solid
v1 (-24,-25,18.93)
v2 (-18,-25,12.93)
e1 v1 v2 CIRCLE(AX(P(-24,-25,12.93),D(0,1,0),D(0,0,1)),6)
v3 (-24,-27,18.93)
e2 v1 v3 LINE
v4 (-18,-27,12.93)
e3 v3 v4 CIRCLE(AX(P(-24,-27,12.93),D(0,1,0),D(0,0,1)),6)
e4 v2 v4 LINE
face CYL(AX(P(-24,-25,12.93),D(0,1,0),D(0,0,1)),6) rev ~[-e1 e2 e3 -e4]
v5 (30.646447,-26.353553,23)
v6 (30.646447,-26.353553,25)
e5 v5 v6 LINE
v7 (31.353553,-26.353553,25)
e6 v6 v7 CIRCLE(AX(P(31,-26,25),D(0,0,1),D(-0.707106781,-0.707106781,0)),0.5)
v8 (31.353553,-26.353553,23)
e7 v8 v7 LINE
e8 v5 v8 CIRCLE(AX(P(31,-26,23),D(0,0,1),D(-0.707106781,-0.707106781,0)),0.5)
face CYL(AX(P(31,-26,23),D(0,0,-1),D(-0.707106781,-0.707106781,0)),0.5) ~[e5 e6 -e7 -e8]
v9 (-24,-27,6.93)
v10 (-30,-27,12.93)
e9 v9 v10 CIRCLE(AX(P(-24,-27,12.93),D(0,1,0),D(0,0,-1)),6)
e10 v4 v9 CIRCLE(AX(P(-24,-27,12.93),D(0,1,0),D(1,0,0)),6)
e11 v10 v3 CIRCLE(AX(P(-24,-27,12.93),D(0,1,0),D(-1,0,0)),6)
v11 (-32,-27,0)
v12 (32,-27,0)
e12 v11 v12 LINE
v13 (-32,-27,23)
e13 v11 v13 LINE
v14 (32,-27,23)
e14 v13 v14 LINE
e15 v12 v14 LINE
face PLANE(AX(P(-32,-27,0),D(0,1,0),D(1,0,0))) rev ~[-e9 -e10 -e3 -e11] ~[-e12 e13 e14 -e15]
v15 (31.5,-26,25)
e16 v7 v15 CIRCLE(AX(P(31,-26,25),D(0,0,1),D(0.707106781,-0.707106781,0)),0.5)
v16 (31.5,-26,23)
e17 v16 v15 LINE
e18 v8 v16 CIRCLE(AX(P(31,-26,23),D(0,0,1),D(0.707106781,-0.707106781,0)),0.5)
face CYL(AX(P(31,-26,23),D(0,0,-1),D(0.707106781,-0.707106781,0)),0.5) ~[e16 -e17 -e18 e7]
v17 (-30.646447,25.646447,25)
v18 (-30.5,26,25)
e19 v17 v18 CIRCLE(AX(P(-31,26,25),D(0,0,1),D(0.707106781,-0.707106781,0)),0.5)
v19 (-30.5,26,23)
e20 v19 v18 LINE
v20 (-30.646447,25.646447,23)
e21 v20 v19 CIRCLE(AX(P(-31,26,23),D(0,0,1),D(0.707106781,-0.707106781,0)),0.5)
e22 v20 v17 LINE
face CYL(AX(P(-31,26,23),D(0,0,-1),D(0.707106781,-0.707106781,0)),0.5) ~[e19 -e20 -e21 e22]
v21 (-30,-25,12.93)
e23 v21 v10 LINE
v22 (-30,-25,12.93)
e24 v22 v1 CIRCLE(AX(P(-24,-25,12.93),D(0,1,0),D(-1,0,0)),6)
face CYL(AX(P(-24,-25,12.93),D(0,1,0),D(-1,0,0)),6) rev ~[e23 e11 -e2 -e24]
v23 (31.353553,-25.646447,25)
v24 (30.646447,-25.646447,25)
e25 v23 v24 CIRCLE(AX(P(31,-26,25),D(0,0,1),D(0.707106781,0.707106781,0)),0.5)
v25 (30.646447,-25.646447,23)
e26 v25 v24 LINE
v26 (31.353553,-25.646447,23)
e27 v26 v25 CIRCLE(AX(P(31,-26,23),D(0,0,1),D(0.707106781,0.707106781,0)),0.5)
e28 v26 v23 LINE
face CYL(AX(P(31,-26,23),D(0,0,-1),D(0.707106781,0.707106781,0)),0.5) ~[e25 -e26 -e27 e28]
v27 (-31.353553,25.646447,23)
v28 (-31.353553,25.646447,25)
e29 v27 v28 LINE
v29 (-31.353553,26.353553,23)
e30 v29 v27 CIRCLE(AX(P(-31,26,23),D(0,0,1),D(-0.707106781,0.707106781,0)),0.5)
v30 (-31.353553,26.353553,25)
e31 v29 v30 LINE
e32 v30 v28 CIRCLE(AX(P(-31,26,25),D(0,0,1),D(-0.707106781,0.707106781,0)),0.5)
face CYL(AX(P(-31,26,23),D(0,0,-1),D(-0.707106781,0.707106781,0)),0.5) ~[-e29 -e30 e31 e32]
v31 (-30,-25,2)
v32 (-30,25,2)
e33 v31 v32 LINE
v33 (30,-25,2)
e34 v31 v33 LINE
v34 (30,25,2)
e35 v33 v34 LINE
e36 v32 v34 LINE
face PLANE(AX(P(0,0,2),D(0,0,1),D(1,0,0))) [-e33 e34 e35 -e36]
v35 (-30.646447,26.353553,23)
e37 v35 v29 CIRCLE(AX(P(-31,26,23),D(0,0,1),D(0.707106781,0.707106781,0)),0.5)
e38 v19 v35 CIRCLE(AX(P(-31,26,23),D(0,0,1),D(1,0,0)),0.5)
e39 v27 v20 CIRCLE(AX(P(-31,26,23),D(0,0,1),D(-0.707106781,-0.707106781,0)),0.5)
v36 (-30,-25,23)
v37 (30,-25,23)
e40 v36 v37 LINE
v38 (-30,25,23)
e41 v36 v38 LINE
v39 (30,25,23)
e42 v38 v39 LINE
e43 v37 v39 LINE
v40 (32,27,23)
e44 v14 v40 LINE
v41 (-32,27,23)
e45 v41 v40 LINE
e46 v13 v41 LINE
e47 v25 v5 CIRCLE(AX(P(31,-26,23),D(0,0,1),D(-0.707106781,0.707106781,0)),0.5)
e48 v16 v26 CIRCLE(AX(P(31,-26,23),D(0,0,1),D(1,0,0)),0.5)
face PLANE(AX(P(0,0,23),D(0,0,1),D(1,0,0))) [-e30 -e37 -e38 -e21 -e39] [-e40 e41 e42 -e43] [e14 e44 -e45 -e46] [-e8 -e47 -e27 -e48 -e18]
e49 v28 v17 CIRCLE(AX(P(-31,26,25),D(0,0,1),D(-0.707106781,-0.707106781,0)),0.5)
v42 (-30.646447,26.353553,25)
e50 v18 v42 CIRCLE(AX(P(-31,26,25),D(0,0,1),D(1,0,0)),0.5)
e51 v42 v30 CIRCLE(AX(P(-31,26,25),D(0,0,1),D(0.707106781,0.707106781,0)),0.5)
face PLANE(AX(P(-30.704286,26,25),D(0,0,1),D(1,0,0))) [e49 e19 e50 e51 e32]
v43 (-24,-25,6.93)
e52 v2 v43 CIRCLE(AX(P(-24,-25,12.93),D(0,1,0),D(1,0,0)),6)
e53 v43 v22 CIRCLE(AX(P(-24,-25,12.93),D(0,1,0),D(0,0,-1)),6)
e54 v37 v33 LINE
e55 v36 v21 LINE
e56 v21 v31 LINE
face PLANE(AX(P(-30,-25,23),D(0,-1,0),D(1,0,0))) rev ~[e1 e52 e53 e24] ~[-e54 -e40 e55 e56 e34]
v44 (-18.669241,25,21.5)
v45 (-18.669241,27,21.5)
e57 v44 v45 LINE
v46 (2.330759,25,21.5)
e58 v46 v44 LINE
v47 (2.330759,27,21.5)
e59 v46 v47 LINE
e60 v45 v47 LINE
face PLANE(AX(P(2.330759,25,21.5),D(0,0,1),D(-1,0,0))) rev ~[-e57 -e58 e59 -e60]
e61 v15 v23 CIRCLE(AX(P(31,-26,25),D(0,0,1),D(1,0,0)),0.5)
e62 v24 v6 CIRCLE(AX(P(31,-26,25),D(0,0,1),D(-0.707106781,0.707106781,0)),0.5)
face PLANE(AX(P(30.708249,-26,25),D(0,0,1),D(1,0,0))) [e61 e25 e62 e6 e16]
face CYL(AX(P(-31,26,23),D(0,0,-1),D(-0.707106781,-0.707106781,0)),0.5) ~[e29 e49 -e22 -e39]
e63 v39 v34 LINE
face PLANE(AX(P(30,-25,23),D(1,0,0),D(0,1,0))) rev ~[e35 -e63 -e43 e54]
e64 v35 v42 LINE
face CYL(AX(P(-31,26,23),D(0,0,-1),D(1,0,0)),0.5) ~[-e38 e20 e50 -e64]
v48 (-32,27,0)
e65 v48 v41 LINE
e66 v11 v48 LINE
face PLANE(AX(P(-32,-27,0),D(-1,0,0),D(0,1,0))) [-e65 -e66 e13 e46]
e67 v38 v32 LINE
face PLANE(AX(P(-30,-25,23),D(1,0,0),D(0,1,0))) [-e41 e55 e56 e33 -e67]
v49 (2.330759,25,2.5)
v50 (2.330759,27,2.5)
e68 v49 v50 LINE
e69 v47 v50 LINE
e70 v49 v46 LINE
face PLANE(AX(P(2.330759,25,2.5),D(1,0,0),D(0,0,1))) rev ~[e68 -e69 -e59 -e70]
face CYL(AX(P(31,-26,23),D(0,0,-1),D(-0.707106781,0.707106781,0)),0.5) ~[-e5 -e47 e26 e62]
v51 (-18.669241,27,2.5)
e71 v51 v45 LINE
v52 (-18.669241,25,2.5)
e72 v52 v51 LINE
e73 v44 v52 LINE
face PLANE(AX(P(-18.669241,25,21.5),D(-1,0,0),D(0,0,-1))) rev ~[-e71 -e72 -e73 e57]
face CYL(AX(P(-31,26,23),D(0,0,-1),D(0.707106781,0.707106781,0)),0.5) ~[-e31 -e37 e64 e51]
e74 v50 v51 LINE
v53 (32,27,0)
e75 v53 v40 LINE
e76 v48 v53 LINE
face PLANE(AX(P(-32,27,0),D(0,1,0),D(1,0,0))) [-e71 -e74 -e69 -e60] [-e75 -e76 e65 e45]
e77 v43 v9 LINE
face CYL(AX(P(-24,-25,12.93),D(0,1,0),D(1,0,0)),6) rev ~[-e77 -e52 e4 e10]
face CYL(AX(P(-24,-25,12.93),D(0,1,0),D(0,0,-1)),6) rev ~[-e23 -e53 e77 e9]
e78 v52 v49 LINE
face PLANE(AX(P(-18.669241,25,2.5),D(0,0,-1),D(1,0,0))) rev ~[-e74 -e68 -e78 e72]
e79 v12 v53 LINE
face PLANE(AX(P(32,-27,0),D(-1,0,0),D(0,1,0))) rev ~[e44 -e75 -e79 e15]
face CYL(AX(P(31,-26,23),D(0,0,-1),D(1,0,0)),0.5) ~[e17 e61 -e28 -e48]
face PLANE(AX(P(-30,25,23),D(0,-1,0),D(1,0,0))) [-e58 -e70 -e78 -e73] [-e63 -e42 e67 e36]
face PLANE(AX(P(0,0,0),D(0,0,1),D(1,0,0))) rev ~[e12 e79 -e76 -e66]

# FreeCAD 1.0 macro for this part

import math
import FreeCAD as App
import Part
import Sketcher
from FreeCAD import Vector

doc = App.newDocument("Part")
body = doc.addObject("PartDesign::Body", "Body")

sketch1 = body.newObject("Sketcher::SketchObject", "Sketch")
sketch1.AttachmentSupport = (doc.getObject("XY_Plane"), [""])
sketch1.MapMode = "FlatFace"
sketch1.addGeometry(Part.LineSegment(Vector(-32, 27, 0), Vector(-32, -27, 0)), False)
sketch1.addGeometry(Part.LineSegment(Vector(-32, -27, 0), Vector(32, -27, 0)), False)
sketch1.addGeometry(Part.LineSegment(Vector(32, -27, 0), Vector(32, 27, 0)), False)
sketch1.addGeometry(Part.LineSegment(Vector(32, 27, 0), Vector(-32, 27, 0)), False)
sketch1.addConstraint(Sketcher.Constraint("Coincident", 0, 2, 1, 1))
sketch1.addConstraint(Sketcher.Constraint("Coincident", 1, 2, 2, 1))
sketch1.addConstraint(Sketcher.Constraint("Coincident", 2, 2, 3, 1))
sketch1.addConstraint(Sketcher.Constraint("Coincident", 3, 2, 0, 1))
sketch1.addConstraint(Sketcher.Constraint("Vertical", 0))
sketch1.addConstraint(Sketcher.Constraint("Horizontal", 1))
sketch1.addConstraint(Sketcher.Constraint("Vertical", 2))
sketch1.addConstraint(Sketcher.Constraint("Horizontal", 3))
sketch1.addConstraint(Sketcher.Constraint("Symmetric", 0, 2, 2, 2, -1, 1))
sketch1.addConstraint(Sketcher.Constraint("DistanceX", 1, 1, 1, 2, 64.0))
sketch1.addConstraint(Sketcher.Constraint("DistanceY", 0, 2, 0, 1, 54.0))
pad1 = body.newObject("PartDesign::Pad", "Pad")
pad1.Profile = sketch1
pad1.Length = 23

sketch2 = body.newObject("Sketcher::SketchObject", "Sketch001")
sketch2.AttachmentSupport = (doc.getObject("XY_Plane"), [""])
sketch2.MapMode = "FlatFace"
sketch2.AttachmentOffset = App.Placement(Vector(0, 0, 23), App.Rotation())
sketch2.addGeometry(Part.LineSegment(Vector(-30, 25, 0), Vector(-30, -25, 0)), False)
sketch2.addGeometry(Part.LineSegment(Vector(-30, -25, 0), Vector(30, -25, 0)), False)
sketch2.addGeometry(Part.LineSegment(Vector(30, -25, 0), Vector(30, 25, 0)), False)
sketch2.addGeometry(Part.LineSegment(Vector(30, 25, 0), Vector(-30, 25, 0)), False)
sketch2.addConstraint(Sketcher.Constraint("Coincident", 0, 2, 1, 1))
sketch2.addConstraint(Sketcher.Constraint("Coincident", 1, 2, 2, 1))
sketch2.addConstraint(Sketcher.Constraint("Coincident", 2, 2, 3, 1))
sketch2.addConstraint(Sketcher.Constraint("Coincident", 3, 2, 0, 1))
sketch2.addConstraint(Sketcher.Constraint("Vertical", 0))
sketch2.addConstraint(Sketcher.Constraint("Horizontal", 1))
sketch2.addConstraint(Sketcher.Constraint("Vertical", 2))
sketch2.addConstraint(Sketcher.Constraint("Horizontal", 3))
sketch2.addConstraint(Sketcher.Constraint("Symmetric", 0, 2, 2, 2, -1, 1))
sketch2.addConstraint(Sketcher.Constraint("DistanceX", 1, 1, 1, 2, 60.0))
sketch2.addConstraint(Sketcher.Constraint("DistanceY", 0, 2, 0, 1, 50.0))
pocket1 = body.newObject("PartDesign::Pocket", "Pocket")
pocket1.Profile = sketch2
pocket1.Length = 21

sketch3 = body.newObject("Sketcher::SketchObject", "Sketch002")
sketch3.AttachmentSupport = (doc.getObject("XZ_Plane"), [""])
sketch3.MapMode = "FlatFace"
sketch3.AttachmentOffset = App.Placement(Vector(0, 0, 25), App.Rotation())
sketch3.addGeometry(Part.ArcOfCircle(Part.Circle(Vector(-24, 12.93, 0), Vector(0, 0, 1), 6), math.radians(180), math.radians(270)), False)
sketch3.addGeometry(Part.ArcOfCircle(Part.Circle(Vector(-24, 12.93, 0), Vector(0, 0, 1), 6), math.radians(90), math.radians(180)), False)
sketch3.addGeometry(Part.ArcOfCircle(Part.Circle(Vector(-24, 12.93, 0), Vector(0, 0, 1), 6), math.radians(0), math.radians(90)), False)
sketch3.addGeometry(Part.ArcOfCircle(Part.Circle(Vector(-24, 12.93, 0), Vector(0, 0, 1), 6), math.radians(-90), math.radians(0)), False)
sketch3.addConstraint(Sketcher.Constraint("Tangent", 0, 1, 1, 2))
sketch3.addConstraint(Sketcher.Constraint("Tangent", 1, 1, 2, 2))
sketch3.addConstraint(Sketcher.Constraint("Tangent", 2, 1, 3, 2))
sketch3.addConstraint(Sketcher.Constraint("Tangent", 3, 1, 0, 2))
sketch3.addConstraint(Sketcher.Constraint("Equal", 0, 1))
sketch3.addConstraint(Sketcher.Constraint("Horizontal", 3, 3, 0, 1))
sketch3.addConstraint(Sketcher.Constraint("Horizontal", 0, 1, 2, 1))
sketch3.addConstraint(Sketcher.Constraint("Vertical", 3, 3, 1, 1))
sketch3.addConstraint(Sketcher.Constraint("Vertical", 1, 1, 3, 1))
sketch3.addConstraint(Sketcher.Constraint("Radius", 0, 6.0))
sketch3.addConstraint(Sketcher.Constraint("DistanceX", 0, 3, -1, 1, 24.0))
sketch3.addConstraint(Sketcher.Constraint("DistanceY", -1, 1, 0, 3, 12.93))
pocket2 = body.newObject("PartDesign::Pocket", "Pocket001")
pocket2.Profile = sketch3
pocket2.Type = "TwoLengths"
pocket2.Length = 25.4
pocket2.Length2 = 25.4
pocket2.Reversed = True

sketch4 = body.newObject("Sketcher::SketchObject", "Sketch003")
sketch4.AttachmentSupport = (doc.getObject("XZ_Plane"), [""])
sketch4.MapMode = "FlatFace"
sketch4.AttachmentOffset = App.Placement(Vector(0, 0, -25), App.Rotation())
sketch4.addGeometry(Part.LineSegment(Vector(-18.669241, 2.5, 0), Vector(2.330759, 2.5, 0)), False)
sketch4.addGeometry(Part.LineSegment(Vector(2.330759, 2.5, 0), Vector(2.330759, 21.5, 0)), False)
sketch4.addGeometry(Part.LineSegment(Vector(2.330759, 21.5, 0), Vector(-18.669241, 21.5, 0)), False)
sketch4.addGeometry(Part.LineSegment(Vector(-18.669241, 21.5, 0), Vector(-18.669241, 2.5, 0)), False)
sketch4.addConstraint(Sketcher.Constraint("Coincident", 0, 2, 1, 1))
sketch4.addConstraint(Sketcher.Constraint("Coincident", 1, 2, 2, 1))
sketch4.addConstraint(Sketcher.Constraint("Coincident", 2, 2, 3, 1))
sketch4.addConstraint(Sketcher.Constraint("Coincident", 3, 2, 0, 1))
sketch4.addConstraint(Sketcher.Constraint("Horizontal", 0))
sketch4.addConstraint(Sketcher.Constraint("Vertical", 1))
sketch4.addConstraint(Sketcher.Constraint("Horizontal", 2))
sketch4.addConstraint(Sketcher.Constraint("Vertical", 3))
sketch4.addConstraint(Sketcher.Constraint("DistanceX", 0, 1, 0, 2, 21.0))
sketch4.addConstraint(Sketcher.Constraint("DistanceY", 1, 1, 1, 2, 19.0))
sketch4.addConstraint(Sketcher.Constraint("DistanceY", -1, 1, 0, 2, 2.5))
sketch4.addConstraint(Sketcher.Constraint("DistanceX", -1, 1, 0, 2, 2.330759))
pocket3 = body.newObject("PartDesign::Pocket", "Pocket002")
pocket3.Profile = sketch4
pocket3.Type = "TwoLengths"
pocket3.Length = 25.4
pocket3.Length2 = 25.4

sketch5 = body.newObject("Sketcher::SketchObject", "Sketch004")
sketch5.AttachmentSupport = (doc.getObject("XY_Plane"), [""])
sketch5.MapMode = "FlatFace"
sketch5.AttachmentOffset = App.Placement(Vector(0, 0, 23), App.Rotation())
sketch5.addGeometry(Part.ArcOfCircle(Part.Circle(Vector(-31, 26, 0), Vector(0, 0, 1), 0.5), math.radians(-45), math.radians(0)), False)
sketch5.addGeometry(Part.ArcOfCircle(Part.Circle(Vector(-31, 26, 0), Vector(0, 0, 1), 0.5), math.radians(0), math.radians(45)), False)
sketch5.addGeometry(Part.ArcOfCircle(Part.Circle(Vector(-31, 26, 0), Vector(0, 0, 1), 0.5), math.radians(45), math.radians(135)), False)
sketch5.addGeometry(Part.ArcOfCircle(Part.Circle(Vector(-31, 26, 0), Vector(0, 0, 1), 0.5), math.radians(135), math.radians(225)), False)
sketch5.addGeometry(Part.ArcOfCircle(Part.Circle(Vector(-31, 26, 0), Vector(0, 0, 1), 0.5), math.radians(-135), math.radians(-45)), False)
sketch5.addConstraint(Sketcher.Constraint("Tangent", 0, 2, 1, 1))
sketch5.addConstraint(Sketcher.Constraint("Tangent", 1, 2, 2, 1))
sketch5.addConstraint(Sketcher.Constraint("Tangent", 2, 2, 3, 1))
sketch5.addConstraint(Sketcher.Constraint("Tangent", 3, 2, 4, 1))
sketch5.addConstraint(Sketcher.Constraint("Tangent", 4, 2, 0, 1))
sketch5.addConstraint(Sketcher.Constraint("Coincident", 2, 3, 0, 3))
sketch5.addConstraint(Sketcher.Constraint("Horizontal", 4, 3, 0, 2))
sketch5.addConstraint(Sketcher.Constraint("Horizontal", 1, 2, 2, 2))
sketch5.addConstraint(Sketcher.Constraint("Horizontal", 3, 2, 4, 2))
sketch5.addConstraint(Sketcher.Constraint("Vertical", 2, 2, 3, 2))
sketch5.addConstraint(Sketcher.Constraint("Radius", 0, 0.5))
sketch5.addConstraint(Sketcher.Constraint("DistanceX", 0, 3, -1, 1, 31.0))
sketch5.addConstraint(Sketcher.Constraint("DistanceY", -1, 1, 0, 3, 26.0))
sketch5.addConstraint(Sketcher.Constraint("DistanceX", 1, 2, -1, 1, 30.646447))
pad2 = body.newObject("PartDesign::Pad", "Pad001")
pad2.Profile = sketch5
pad2.Length = 2

sketch6 = body.newObject("Sketcher::SketchObject", "Sketch005")
sketch6.AttachmentSupport = (doc.getObject("XY_Plane"), [""])
sketch6.MapMode = "FlatFace"
sketch6.AttachmentOffset = App.Placement(Vector(0, 0, 23), App.Rotation())
sketch6.addGeometry(Part.ArcOfCircle(Part.Circle(Vector(31, -26, 0), Vector(0, 0, 1), 0.5), math.radians(135), math.radians(225)), False)
sketch6.addGeometry(Part.ArcOfCircle(Part.Circle(Vector(31, -26, 0), Vector(0, 0, 1), 0.5), math.radians(-135), math.radians(-45)), False)
sketch6.addGeometry(Part.ArcOfCircle(Part.Circle(Vector(31, -26, 0), Vector(0, 0, 1), 0.5), math.radians(-45), math.radians(0)), False)
sketch6.addGeometry(Part.ArcOfCircle(Part.Circle(Vector(31, -26, 0), Vector(0, 0, 1), 0.5), math.radians(0), math.radians(45)), False)
sketch6.addGeometry(Part.ArcOfCircle(Part.Circle(Vector(31, -26, 0), Vector(0, 0, 1), 0.5), math.radians(45), math.radians(135)), False)
sketch6.addConstraint(Sketcher.Constraint("Tangent", 0, 2, 1, 1))
sketch6.addConstraint(Sketcher.Constraint("Tangent", 1, 2, 2, 1))
sketch6.addConstraint(Sketcher.Constraint("Tangent", 2, 2, 3, 1))
sketch6.addConstraint(Sketcher.Constraint("Tangent", 3, 2, 4, 1))
sketch6.addConstraint(Sketcher.Constraint("Tangent", 4, 2, 0, 1))
sketch6.addConstraint(Sketcher.Constraint("Coincident", 2, 3, 0, 3))
sketch6.addConstraint(Sketcher.Constraint("Horizontal", 0, 2, 1, 2))
sketch6.addConstraint(Sketcher.Constraint("Horizontal", 4, 3, 2, 2))
sketch6.addConstraint(Sketcher.Constraint("Horizontal", 3, 2, 4, 2))
sketch6.addConstraint(Sketcher.Constraint("Vertical", 1, 2, 3, 2))
sketch6.addConstraint(Sketcher.Constraint("Radius", 0, 0.5))
sketch6.addConstraint(Sketcher.Constraint("DistanceX", -1, 1, 0, 3, 31.0))
sketch6.addConstraint(Sketcher.Constraint("DistanceY", 0, 3, -1, 1, 26.0))
sketch6.addConstraint(Sketcher.Constraint("DistanceX", -1, 1, 0, 2, 30.646447))
pad3 = body.newObject("PartDesign::Pad", "Pad002")
pad3.Profile = sketch6
pad3.Length = 2

doc.recompute()
